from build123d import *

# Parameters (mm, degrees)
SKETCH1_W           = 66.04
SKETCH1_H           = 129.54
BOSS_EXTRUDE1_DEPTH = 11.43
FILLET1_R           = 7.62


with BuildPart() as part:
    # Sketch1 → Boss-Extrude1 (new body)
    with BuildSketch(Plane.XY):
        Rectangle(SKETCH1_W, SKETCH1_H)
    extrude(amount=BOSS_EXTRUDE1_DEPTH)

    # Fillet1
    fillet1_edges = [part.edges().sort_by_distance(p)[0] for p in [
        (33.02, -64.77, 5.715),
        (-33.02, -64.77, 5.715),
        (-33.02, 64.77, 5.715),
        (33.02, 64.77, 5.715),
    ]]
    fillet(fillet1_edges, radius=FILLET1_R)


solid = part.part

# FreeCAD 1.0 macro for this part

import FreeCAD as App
import Part
import Sketcher
from FreeCAD import Vector
Q = App.Units.Quantity


def edges_at(feature, points):
    """Names of the edges that pass closest to the given points."""
    edges = feature.Shape.Edges
    near = lambda p: min(range(len(edges)), key=lambda i: edges[i].distToShape(Part.Vertex(*p))[0])
    return sorted({f"Edge{near(p) + 1}" for p in points})

doc = App.newDocument("Part")
body = doc.addObject("PartDesign::Body", "Body")

# Sketch on XY plane
sketch1 = body.newObject("Sketcher::SketchObject", "Sketch")
sketch1.AttachmentSupport = (doc.getObject("XY_Plane"), [""])
sketch1.MapMode = "FlatFace"
sketch1.addGeometry([
    Part.LineSegment(Vector(-33, 65, 0), Vector(-33, -65, 0)),
    Part.LineSegment(Vector(-33, -65, 0), Vector(33, -65, 0)),
    Part.LineSegment(Vector(33, -65, 0), Vector(33, 65, 0)),
    Part.LineSegment(Vector(33, 65, 0), Vector(-33, 65, 0)),
], False)
sketch1.addConstraint([
    Sketcher.Constraint("Coincident", 0, 2, 1, 1),
    Sketcher.Constraint("Coincident", 1, 2, 2, 1),
    Sketcher.Constraint("Coincident", 2, 2, 3, 1),
    Sketcher.Constraint("Coincident", 3, 2, 0, 1),
    Sketcher.Constraint("Vertical", 0),
    Sketcher.Constraint("Horizontal", 1),
    Sketcher.Constraint("Vertical", 2),
    Sketcher.Constraint("Horizontal", 3),
    Sketcher.Constraint("Symmetric", 0, 2, 2, 2, -1, 1),
    Sketcher.Constraint("DistanceX", 1, 1, 1, 2, Q("2.6 in")),
    Sketcher.Constraint("DistanceY", 0, 2, 0, 1, Q("5.1 in")),
])
pad1 = body.newObject("PartDesign::Pad", "Pad")
pad1.Profile = sketch1
pad1.Length = Q("0.45 in")
doc.recompute()

fillet = body.newObject("PartDesign::Fillet", "Fillet")
fillet.Base = (pad1, edges_at(pad1, [
    (33.02, -64.77, 5.715),
    (-33.02, -64.77, 5.715),
    (-33.02, 64.77, 5.715),
    (33.02, 64.77, 5.715),
]))
fillet.Radius = Q("0.3 in")

doc.recompute()
